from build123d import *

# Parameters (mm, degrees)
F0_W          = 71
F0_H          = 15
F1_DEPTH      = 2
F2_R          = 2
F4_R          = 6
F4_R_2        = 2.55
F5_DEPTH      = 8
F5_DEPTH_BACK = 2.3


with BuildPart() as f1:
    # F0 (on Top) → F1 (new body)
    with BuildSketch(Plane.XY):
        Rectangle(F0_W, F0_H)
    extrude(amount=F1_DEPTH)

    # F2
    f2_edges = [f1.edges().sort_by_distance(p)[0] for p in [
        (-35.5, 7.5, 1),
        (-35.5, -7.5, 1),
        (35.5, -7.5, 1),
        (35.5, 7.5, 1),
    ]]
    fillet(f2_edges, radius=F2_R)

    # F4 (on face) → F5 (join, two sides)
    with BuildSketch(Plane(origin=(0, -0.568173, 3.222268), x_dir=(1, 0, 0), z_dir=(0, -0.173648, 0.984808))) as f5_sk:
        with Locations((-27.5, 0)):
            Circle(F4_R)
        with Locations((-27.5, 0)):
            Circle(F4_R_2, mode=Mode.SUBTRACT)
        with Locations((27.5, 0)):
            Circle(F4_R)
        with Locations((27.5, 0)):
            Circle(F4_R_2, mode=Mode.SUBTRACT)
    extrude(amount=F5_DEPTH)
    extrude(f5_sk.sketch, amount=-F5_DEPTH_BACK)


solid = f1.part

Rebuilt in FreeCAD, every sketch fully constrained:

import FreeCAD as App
import Part
import Sketcher

V = App.Vector


def edges_at(feature, points):
    """Names of the edges that pass closest to the given points."""
    edges = feature.Shape.Edges
    near = lambda p: min(range(len(edges)), key=lambda i: edges[i].distToShape(Part.Vertex(*p))[0])
    return sorted({f"Edge{near(p) + 1}" for p in points})

doc = App.newDocument("Part")
body = doc.addObject("PartDesign::Body", "Body")

# Sketch on XY plane
sketch1 = body.newObject("Sketcher::SketchObject", "Sketch")
sketch1.AttachmentSupport = (doc.getObject("XY_Plane"), [""])
sketch1.MapMode = "FlatFace"
sketch1.addGeometry([
    Part.LineSegment(V(-35.5, 7.5, 0), V(-35.5, -7.5, 0)),
    Part.LineSegment(V(-35.5, -7.5, 0), V(35.5, -7.5, 0)),
    Part.LineSegment(V(35.5, -7.5, 0), V(35.5, 7.5, 0)),
    Part.LineSegment(V(35.5, 7.5, 0), V(-35.5, 7.5, 0)),
], False)
sketch1.addConstraint([
    Sketcher.Constraint("Coincident", 0, 2, 1, 1),
    Sketcher.Constraint("Coincident", 1, 2, 2, 1),
    Sketcher.Constraint("Coincident", 2, 2, 3, 1),
    Sketcher.Constraint("Coincident", 3, 2, 0, 1),
    Sketcher.Constraint("Vertical", 0),
    Sketcher.Constraint("Horizontal", 1),
    Sketcher.Constraint("Vertical", 2),
    Sketcher.Constraint("Horizontal", 3),
    Sketcher.Constraint("Symmetric", 0, 2, 2, 2, -1, 1),
    Sketcher.Constraint("DistanceX", 1, 1, 1, 2, 71.0),
    Sketcher.Constraint("DistanceY", 0, 2, 0, 1, 15.0),
])
pad1 = body.newObject("PartDesign::Pad", "Pad")
pad1.Profile = sketch1
pad1.Length = 2
doc.recompute()

fillet = body.newObject("PartDesign::Fillet", "Fillet")
fillet.Base = (pad1, edges_at(pad1, [
    (-35.5, 7.5, 1),
    (-35.5, -7.5, 1),
    (35.5, -7.5, 1),
    (35.5, 7.5, 1),
]))
fillet.Radius = 2

# Sketch on an angled plane
sketch2 = body.newObject("Sketcher::SketchObject", "Sketch001")
sketch2.Placement = App.Placement(V(0, -0.568173, 3.222268), App.Rotation(V(1, 0, 0), V(0, 0.984807791, 0.173647963), V(0, -0.173647963, 0.984807791), "ZXY"))
sketch2.addGeometry([
    Part.Circle(V(-27.5, 0, 0), V(0, 0, 1), 6),
    Part.Circle(V(-27.5, 0, 0), V(0, 0, 1), 2.55),
    Part.Circle(V(27.5, 0, 0), V(0, 0, 1), 6),
    Part.Circle(V(27.5, 0, 0), V(0, 0, 1), 2.55),
], False)
sketch2.addConstraint([
    Sketcher.Constraint("Coincident", 1, 3, 0, 3),
    Sketcher.Constraint("Coincident", 3, 3, 2, 3),
    Sketcher.Constraint("Equal", 0, 2),
    Sketcher.Constraint("Equal", 1, 3),
    Sketcher.Constraint("Symmetric", 0, 3, 2, 3, -1, 1),
    Sketcher.Constraint("PointOnObject", 0, 3, -1),
    Sketcher.Constraint("Diameter", 0, 12.0),
    Sketcher.Constraint("Diameter", 1, 5.1),
    Sketcher.Constraint("DistanceX", 0, 3, 2, 3, 55.0),
])
pad2 = body.newObject("PartDesign::Pad", "Pad001")
pad2.Profile = sketch2
pad2.Type = "TwoLengths"
pad2.Length = 8
pad2.Length2 = 2.3

doc.recompute()
